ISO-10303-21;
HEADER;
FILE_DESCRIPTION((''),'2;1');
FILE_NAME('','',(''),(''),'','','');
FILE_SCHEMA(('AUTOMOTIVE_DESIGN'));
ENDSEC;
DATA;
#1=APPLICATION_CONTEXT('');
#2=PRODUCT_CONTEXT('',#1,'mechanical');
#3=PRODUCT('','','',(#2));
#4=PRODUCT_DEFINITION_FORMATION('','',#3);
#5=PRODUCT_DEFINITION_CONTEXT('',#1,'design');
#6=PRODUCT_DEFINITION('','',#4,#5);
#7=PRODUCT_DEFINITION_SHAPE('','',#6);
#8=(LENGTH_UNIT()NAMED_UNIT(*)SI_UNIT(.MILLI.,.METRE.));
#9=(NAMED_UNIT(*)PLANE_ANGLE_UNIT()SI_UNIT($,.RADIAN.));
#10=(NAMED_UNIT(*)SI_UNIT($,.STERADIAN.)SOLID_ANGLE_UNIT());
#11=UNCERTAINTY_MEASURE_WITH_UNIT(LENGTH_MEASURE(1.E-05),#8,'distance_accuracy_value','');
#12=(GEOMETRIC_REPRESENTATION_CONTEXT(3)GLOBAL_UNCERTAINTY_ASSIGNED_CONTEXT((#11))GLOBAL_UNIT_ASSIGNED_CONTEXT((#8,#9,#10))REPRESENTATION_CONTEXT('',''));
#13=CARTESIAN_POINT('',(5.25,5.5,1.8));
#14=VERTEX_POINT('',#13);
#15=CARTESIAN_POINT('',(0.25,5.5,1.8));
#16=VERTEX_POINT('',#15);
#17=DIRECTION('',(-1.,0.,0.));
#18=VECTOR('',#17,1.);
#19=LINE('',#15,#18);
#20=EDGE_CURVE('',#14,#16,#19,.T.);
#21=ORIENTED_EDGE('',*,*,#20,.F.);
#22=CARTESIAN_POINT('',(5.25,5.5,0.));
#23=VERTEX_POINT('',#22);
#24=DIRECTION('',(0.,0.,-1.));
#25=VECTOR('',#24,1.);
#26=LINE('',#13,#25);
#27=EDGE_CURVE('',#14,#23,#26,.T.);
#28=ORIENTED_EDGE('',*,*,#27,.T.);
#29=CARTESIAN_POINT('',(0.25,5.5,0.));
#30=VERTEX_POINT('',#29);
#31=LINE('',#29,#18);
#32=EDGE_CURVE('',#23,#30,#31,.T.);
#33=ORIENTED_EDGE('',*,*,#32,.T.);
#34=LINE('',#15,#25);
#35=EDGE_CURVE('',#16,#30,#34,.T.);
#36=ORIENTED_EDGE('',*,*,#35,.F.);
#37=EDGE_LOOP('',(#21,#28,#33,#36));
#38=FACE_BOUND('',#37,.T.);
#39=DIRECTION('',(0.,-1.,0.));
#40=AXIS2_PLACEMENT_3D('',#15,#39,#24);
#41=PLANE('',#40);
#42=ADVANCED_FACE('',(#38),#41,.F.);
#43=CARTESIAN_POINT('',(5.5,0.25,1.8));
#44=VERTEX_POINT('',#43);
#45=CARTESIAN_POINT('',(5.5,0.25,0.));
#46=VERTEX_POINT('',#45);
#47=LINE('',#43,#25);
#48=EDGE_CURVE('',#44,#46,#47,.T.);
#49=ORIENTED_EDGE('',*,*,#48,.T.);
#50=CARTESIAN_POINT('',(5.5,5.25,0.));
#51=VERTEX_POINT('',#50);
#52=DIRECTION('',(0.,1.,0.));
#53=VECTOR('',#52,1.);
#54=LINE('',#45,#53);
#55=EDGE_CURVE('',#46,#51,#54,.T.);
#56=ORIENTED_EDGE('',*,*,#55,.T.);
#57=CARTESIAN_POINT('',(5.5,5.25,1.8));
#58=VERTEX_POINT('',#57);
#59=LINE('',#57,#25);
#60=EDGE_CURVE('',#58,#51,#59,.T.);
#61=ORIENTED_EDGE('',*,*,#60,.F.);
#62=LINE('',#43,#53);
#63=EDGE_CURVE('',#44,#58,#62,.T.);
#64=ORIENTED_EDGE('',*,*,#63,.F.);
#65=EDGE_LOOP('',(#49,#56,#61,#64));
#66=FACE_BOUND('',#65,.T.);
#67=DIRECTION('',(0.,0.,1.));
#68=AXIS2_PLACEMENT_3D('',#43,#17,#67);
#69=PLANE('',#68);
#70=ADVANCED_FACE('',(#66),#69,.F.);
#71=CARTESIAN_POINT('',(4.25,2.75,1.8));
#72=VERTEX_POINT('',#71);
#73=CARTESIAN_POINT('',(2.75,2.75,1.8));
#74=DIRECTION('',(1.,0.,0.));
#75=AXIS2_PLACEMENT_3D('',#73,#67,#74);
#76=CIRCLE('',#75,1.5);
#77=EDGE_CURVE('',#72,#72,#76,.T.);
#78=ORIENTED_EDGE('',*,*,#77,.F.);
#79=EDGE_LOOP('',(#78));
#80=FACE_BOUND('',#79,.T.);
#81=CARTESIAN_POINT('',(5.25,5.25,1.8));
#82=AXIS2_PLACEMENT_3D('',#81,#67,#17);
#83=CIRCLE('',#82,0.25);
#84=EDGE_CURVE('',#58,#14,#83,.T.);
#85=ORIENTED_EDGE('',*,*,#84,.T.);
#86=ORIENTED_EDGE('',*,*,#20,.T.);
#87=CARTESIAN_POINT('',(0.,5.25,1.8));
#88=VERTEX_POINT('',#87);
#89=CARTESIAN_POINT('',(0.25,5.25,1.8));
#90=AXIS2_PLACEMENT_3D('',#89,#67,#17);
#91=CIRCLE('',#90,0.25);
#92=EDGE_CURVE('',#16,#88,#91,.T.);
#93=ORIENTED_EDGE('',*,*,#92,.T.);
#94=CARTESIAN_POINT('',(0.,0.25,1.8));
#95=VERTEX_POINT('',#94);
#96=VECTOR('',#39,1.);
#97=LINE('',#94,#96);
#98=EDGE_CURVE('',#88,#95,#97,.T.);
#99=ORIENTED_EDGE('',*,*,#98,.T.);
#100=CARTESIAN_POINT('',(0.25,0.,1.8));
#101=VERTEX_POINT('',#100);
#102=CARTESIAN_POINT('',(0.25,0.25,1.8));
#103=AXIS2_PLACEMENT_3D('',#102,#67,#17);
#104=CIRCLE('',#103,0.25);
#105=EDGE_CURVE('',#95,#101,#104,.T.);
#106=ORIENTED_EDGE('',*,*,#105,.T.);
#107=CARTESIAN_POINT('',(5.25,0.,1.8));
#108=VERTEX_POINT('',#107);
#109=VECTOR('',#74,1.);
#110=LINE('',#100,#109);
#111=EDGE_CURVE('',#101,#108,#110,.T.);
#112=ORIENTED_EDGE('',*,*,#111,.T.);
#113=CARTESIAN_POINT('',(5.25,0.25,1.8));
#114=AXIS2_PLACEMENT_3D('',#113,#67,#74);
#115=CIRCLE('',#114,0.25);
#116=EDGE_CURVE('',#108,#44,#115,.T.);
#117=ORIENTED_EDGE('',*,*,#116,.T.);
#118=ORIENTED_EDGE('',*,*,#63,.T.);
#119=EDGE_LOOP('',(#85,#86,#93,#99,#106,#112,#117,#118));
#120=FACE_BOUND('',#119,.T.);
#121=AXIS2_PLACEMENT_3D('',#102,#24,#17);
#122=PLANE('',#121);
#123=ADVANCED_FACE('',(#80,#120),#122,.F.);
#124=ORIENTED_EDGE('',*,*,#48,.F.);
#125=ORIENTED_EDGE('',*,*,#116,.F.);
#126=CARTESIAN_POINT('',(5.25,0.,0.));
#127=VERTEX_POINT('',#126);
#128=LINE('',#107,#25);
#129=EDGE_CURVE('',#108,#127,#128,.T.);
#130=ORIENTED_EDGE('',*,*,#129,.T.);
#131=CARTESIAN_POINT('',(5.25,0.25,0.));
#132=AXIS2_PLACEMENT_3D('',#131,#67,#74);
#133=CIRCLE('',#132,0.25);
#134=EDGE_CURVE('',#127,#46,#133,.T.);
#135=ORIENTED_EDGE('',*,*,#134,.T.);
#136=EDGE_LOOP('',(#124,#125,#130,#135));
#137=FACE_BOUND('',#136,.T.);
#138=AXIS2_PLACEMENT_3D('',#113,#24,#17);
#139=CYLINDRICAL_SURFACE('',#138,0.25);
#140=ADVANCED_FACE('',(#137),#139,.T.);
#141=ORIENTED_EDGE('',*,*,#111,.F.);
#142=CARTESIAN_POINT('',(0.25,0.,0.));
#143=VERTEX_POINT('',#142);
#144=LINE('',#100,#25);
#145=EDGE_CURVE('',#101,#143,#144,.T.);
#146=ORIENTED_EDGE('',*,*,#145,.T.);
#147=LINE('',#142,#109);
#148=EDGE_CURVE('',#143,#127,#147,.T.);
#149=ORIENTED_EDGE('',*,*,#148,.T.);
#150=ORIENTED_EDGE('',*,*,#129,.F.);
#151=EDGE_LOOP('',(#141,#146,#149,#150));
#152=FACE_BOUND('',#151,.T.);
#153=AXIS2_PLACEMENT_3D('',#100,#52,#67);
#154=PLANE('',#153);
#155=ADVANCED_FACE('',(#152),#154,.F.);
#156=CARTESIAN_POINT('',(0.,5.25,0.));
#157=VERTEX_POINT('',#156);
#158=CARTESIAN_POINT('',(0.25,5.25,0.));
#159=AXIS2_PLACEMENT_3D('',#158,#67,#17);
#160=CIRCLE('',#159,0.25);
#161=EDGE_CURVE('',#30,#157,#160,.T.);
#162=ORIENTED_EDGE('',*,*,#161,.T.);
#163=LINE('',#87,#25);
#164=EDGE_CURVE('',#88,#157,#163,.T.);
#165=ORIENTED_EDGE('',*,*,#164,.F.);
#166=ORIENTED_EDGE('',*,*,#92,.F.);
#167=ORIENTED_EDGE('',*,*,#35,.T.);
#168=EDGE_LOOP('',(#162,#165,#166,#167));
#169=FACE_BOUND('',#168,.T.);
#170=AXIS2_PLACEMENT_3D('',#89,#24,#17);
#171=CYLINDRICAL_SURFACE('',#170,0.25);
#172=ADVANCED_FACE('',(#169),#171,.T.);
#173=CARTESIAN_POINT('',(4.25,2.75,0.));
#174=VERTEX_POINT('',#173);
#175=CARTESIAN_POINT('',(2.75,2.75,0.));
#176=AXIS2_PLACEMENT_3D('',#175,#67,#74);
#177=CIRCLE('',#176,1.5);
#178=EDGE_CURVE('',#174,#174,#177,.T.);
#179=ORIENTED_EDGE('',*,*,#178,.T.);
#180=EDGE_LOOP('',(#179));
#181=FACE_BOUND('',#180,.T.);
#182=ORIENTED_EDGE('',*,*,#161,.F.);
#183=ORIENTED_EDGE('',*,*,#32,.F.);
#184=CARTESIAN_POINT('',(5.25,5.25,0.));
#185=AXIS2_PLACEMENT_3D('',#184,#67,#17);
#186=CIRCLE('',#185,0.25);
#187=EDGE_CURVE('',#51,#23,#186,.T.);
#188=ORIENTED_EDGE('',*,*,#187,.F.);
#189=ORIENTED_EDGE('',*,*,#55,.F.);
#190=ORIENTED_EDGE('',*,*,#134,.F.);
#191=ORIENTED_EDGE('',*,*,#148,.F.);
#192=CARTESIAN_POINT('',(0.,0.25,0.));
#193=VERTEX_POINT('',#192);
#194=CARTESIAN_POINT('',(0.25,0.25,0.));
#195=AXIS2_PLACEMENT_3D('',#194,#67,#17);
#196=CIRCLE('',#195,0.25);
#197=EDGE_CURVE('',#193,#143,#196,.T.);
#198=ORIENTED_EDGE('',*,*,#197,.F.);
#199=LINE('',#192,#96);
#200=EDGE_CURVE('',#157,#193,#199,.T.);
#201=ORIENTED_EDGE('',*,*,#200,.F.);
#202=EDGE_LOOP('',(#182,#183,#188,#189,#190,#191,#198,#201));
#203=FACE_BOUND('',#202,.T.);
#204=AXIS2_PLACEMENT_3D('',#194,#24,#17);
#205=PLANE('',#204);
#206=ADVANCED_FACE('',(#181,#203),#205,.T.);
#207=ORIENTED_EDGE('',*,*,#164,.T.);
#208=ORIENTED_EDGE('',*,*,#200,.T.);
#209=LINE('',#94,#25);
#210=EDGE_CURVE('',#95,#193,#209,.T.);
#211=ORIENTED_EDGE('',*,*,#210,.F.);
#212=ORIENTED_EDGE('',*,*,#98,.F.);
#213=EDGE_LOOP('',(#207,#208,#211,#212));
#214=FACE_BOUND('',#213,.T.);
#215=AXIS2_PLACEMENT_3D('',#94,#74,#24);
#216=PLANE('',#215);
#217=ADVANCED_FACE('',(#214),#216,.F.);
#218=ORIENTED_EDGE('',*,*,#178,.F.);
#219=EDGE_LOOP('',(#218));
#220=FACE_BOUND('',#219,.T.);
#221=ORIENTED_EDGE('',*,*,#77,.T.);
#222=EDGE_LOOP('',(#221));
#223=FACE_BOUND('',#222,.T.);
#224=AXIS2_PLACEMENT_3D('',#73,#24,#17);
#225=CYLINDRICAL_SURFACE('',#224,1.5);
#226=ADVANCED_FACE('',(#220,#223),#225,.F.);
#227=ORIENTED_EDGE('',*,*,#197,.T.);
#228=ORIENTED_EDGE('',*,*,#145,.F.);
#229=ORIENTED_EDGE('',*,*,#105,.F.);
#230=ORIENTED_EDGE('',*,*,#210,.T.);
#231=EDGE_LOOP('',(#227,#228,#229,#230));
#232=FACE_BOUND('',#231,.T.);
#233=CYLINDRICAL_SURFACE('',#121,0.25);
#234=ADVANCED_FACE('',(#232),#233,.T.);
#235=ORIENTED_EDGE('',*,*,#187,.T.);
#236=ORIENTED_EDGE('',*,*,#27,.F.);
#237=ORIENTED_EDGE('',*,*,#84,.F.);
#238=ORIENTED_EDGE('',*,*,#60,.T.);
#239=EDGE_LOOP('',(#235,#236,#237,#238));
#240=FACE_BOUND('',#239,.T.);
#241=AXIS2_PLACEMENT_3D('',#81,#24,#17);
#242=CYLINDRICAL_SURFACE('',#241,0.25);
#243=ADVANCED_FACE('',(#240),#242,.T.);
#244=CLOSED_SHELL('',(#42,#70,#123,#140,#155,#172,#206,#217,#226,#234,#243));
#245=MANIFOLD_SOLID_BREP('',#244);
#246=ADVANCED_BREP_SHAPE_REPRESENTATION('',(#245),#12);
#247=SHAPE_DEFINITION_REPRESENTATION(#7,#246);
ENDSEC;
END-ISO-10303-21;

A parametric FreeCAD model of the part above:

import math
import FreeCAD as App
import Part
import Sketcher
from FreeCAD import Vector
Q = App.Units.Quantity

doc = App.newDocument("Part")
body = doc.addObject("PartDesign::Body", "Body")

# Sketch on XY plane
sketch1 = body.newObject("Sketcher::SketchObject", "Sketch")
sketch1.AttachmentSupport = (doc.getObject("XY_Plane"), [""])
sketch1.MapMode = "FlatFace"
sketch1.addGeometry(Part.LineSegment(Vector(0.25, 0, 0), Vector(5.25, 0, 0)), False)
sketch1.addGeometry(Part.ArcOfCircle(Part.Circle(Vector(5.25, 0.25, 0), Vector(0, 0, 1), 0.25), math.radians(-90), math.radians(0)), False)
sketch1.addGeometry(Part.LineSegment(Vector(5.5, 0.25, 0), Vector(5.5, 5.25, 0)), False)
sketch1.addGeometry(Part.ArcOfCircle(Part.Circle(Vector(5.25, 5.25, 0), Vector(0, 0, 1), 0.25), math.radians(0), math.radians(90)), False)
sketch1.addGeometry(Part.LineSegment(Vector(5.25, 5.5, 0), Vector(0.25, 5.5, 0)), False)
sketch1.addGeometry(Part.ArcOfCircle(Part.Circle(Vector(0.25, 5.25, 0), Vector(0, 0, 1), 0.25), math.radians(90), math.radians(180)), False)
sketch1.addGeometry(Part.LineSegment(Vector(0, 5.25, 0), Vector(0, 0.25, 0)), False)
sketch1.addGeometry(Part.ArcOfCircle(Part.Circle(Vector(0.25, 0.25, 0), Vector(0, 0, 1), 0.25), math.radians(-180), math.radians(-90)), False)
sketch1.addGeometry(Part.Circle(Vector(2.75, 2.75, 0), Vector(0, 0, 1), 1.5), False)
sketch1.addConstraint(Sketcher.Constraint("Tangent", 0, 2, 1, 1))
sketch1.addConstraint(Sketcher.Constraint("Tangent", 1, 2, 2, 1))
sketch1.addConstraint(Sketcher.Constraint("Tangent", 2, 2, 3, 1))
sketch1.addConstraint(Sketcher.Constraint("Tangent", 3, 2, 4, 1))
sketch1.addConstraint(Sketcher.Constraint("Tangent", 4, 2, 5, 1))
sketch1.addConstraint(Sketcher.Constraint("Tangent", 5, 2, 6, 1))
sketch1.addConstraint(Sketcher.Constraint("Tangent", 6, 2, 7, 1))
sketch1.addConstraint(Sketcher.Constraint("Tangent", 7, 2, 0, 1))
sketch1.addConstraint(Sketcher.Constraint("Horizontal", 0))
sketch1.addConstraint(Sketcher.Constraint("Vertical", 2))
sketch1.addConstraint(Sketcher.Constraint("Horizontal", 4))
sketch1.addConstraint(Sketcher.Constraint("Vertical", 6))
sketch1.addConstraint(Sketcher.Constraint("Equal", 1, 3))
sketch1.addConstraint(Sketcher.Constraint("Equal", 3, 5))
sketch1.addConstraint(Sketcher.Constraint("Equal", 5, 7))
sketch1.addConstraint(Sketcher.Constraint("PointOnObject", 0, 2, -1))
sketch1.addConstraint(Sketcher.Constraint("PointOnObject", 5, 2, -2))
sketch1.addConstraint(Sketcher.Constraint("Equal", 4, 2))
sketch1.addConstraint(Sketcher.Constraint("Diameter", 8, Q("3 mm")))
sketch1.addConstraint(Sketcher.Constraint("DistanceX", 0, 1, 0, 2, Q("5 mm")))
sketch1.addConstraint(Sketcher.Constraint("Radius", 1, Q("0.25 mm")))
sketch1.addConstraint(Sketcher.Constraint("DistanceX", 8, 3, 1, 3, Q("2.5 mm")))
sketch1.addConstraint(Sketcher.Constraint("DistanceY", 1, 3, 8, 3, Q("2.5 mm")))
pad1 = body.newObject("PartDesign::Pad", "Pad")
pad1.Profile = sketch1
pad1.Length = 1.8

doc.recompute()
